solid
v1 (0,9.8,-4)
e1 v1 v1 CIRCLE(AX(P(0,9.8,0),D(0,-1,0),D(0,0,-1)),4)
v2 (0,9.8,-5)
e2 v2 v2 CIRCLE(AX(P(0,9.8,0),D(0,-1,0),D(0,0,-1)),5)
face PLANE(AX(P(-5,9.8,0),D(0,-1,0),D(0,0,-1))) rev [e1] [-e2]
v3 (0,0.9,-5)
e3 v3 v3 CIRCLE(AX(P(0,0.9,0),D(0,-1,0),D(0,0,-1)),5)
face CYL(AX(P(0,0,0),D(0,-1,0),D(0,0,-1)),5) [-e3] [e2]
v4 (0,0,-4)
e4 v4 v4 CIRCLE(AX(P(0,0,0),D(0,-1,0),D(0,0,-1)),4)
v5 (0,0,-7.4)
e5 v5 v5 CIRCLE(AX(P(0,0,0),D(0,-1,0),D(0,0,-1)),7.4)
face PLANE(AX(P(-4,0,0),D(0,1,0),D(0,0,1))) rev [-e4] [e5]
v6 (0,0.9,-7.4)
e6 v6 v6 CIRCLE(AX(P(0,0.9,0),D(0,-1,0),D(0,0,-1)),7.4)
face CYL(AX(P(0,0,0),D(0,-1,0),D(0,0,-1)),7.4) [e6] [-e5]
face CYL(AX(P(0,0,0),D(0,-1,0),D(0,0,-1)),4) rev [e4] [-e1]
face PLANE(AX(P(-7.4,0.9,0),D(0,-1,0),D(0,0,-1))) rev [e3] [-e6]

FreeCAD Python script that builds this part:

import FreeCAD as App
import Part
import Sketcher

doc = App.newDocument("Part")
body = doc.addObject("PartDesign::Body", "Body")

# Sketch on XY plane
sketch1 = doc.addObject("Sketcher::SketchObject", "Sketch")
body.addObject(sketch1)
sketch1.AttachmentSupport = (doc.XY_Plane, [""])
sketch1.MapMode = "FlatFace"
sketch1.addGeometry(Part.LineSegment(App.Vector(-7.4, 0, 0), App.Vector(-4, 0, 0)), False)
sketch1.addGeometry(Part.LineSegment(App.Vector(-4, 0, 0), App.Vector(-4, 9.8, 0)), False)
sketch1.addGeometry(Part.LineSegment(App.Vector(-4, 9.8, 0), App.Vector(-5, 9.8, 0)), False)
sketch1.addGeometry(Part.LineSegment(App.Vector(-5, 9.8, 0), App.Vector(-5, 0.9, 0)), False)
sketch1.addGeometry(Part.LineSegment(App.Vector(-5, 0.9, 0), App.Vector(-7.4, 0.9, 0)), False)
sketch1.addGeometry(Part.LineSegment(App.Vector(-7.4, 0.9, 0), App.Vector(-7.4, 0, 0)), False)
sketch1.addConstraint(Sketcher.Constraint("Coincident", 0, 2, 1, 1))
sketch1.addConstraint(Sketcher.Constraint("Coincident", 1, 2, 2, 1))
sketch1.addConstraint(Sketcher.Constraint("Coincident", 2, 2, 3, 1))
sketch1.addConstraint(Sketcher.Constraint("Coincident", 3, 2, 4, 1))
sketch1.addConstraint(Sketcher.Constraint("Coincident", 4, 2, 5, 1))
sketch1.addConstraint(Sketcher.Constraint("Coincident", 5, 2, 0, 1))
sketch1.addConstraint(Sketcher.Constraint("Horizontal", 0))
sketch1.addConstraint(Sketcher.Constraint("Vertical", 1))
sketch1.addConstraint(Sketcher.Constraint("Horizontal", 2))
sketch1.addConstraint(Sketcher.Constraint("Vertical", 3))
sketch1.addConstraint(Sketcher.Constraint("Horizontal", 4))
sketch1.addConstraint(Sketcher.Constraint("Vertical", 5))
sketch1.addConstraint(Sketcher.Constraint("PointOnObject", 0, 2, -1))
sketch1.addConstraint(Sketcher.Constraint("DistanceX", 2, 2, 2, 1, 1.0))
sketch1.addConstraint(Sketcher.Constraint("DistanceX", 0, 1, 0, 2, 3.4))
sketch1.addConstraint(Sketcher.Constraint("DistanceY", 1, 1, 1, 2, 9.8))
sketch1.addConstraint(Sketcher.Constraint("DistanceY", 3, 2, 3, 1, 8.9))
sketch1.addConstraint(Sketcher.Constraint("DistanceX", 0, 2, -1, 1, 4.0))
revolution = doc.addObject("PartDesign::Revolution", "Revolution")
body.addObject(revolution)
revolution.Profile = sketch1
revolution.ReferenceAxis = (sketch1, ["V_Axis"])
revolution.Angle = 360

doc.recompute()
